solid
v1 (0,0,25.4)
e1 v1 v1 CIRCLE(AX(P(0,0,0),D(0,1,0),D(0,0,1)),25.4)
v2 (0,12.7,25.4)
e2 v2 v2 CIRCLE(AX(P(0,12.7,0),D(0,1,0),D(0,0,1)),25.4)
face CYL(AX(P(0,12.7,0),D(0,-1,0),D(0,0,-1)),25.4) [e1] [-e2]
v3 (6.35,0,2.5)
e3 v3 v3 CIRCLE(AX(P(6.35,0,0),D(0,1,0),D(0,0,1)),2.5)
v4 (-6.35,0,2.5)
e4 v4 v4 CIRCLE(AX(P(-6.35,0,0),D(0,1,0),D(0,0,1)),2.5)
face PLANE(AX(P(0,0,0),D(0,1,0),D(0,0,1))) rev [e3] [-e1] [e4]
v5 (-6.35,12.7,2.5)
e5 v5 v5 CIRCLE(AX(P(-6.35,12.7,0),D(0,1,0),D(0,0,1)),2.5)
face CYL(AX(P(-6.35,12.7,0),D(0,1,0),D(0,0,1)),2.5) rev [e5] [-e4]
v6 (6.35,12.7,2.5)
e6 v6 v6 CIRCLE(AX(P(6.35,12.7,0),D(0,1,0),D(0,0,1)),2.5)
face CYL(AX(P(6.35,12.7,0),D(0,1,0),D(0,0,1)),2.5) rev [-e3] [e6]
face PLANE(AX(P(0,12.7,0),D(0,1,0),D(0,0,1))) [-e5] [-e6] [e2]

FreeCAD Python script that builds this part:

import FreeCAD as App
import Part
import Sketcher
from FreeCAD import Vector
Q = App.Units.Quantity

doc = App.newDocument("Part")
body = doc.addObject("PartDesign::Body", "Body")

# Sketch on XZ plane
sketch1 = body.newObject("Sketcher::SketchObject", "Sketch")
sketch1.AttachmentSupport = (doc.getObject("XZ_Plane"), [""])
sketch1.MapMode = "FlatFace"
sketch1.addGeometry(Part.Circle(Vector(0, 0, 0), Vector(0, 0, 1), 25), False)
sketch1.addConstraint(Sketcher.Constraint("Coincident", 0, 3, -1, 1))
sketch1.addConstraint(Sketcher.Constraint("Diameter", 0, Q("2 in")))
pad1 = body.newObject("PartDesign::Pad", "Pad")
pad1.Profile = sketch1
pad1.Length = Q("0.5 in")
pad1.Reversed = True

# Sketch on XZ plane
sketch2 = body.newObject("Sketcher::SketchObject", "Sketch001")
sketch2.AttachmentSupport = (doc.getObject("XZ_Plane"), [""])
sketch2.MapMode = "FlatFace"
sketch2.AttachmentOffset = App.Placement(Vector(0, 0, -0.5 * 25.4), App.Rotation())
sketch2.addGeometry(Part.Circle(Vector(-6.3, 0, 0), Vector(0, 0, 1), 2.5), False)
sketch2.addGeometry(Part.Circle(Vector(6.3, 0, 0), Vector(0, 0, 1), 2.5), False)
sketch2.addConstraint(Sketcher.Constraint("Equal", 0, 1))
sketch2.addConstraint(Sketcher.Constraint("Symmetric", 0, 3, 1, 3, -1, 1))
sketch2.addConstraint(Sketcher.Constraint("PointOnObject", 0, 3, -1))
sketch2.addConstraint(Sketcher.Constraint("DistanceX", 0, 3, 1, 3, Q("0.5 in")))
sketch2.addConstraint(Sketcher.Constraint("Diameter", 0, 5.0))
doc.recompute()
hole = body.newObject("PartDesign::Hole", "Hole")
hole.Profile = sketch2
hole.ThreadType = "None"
hole.Diameter = 5
hole.DepthType = "ThroughAll"
hole.Reversed = True

doc.recompute()
